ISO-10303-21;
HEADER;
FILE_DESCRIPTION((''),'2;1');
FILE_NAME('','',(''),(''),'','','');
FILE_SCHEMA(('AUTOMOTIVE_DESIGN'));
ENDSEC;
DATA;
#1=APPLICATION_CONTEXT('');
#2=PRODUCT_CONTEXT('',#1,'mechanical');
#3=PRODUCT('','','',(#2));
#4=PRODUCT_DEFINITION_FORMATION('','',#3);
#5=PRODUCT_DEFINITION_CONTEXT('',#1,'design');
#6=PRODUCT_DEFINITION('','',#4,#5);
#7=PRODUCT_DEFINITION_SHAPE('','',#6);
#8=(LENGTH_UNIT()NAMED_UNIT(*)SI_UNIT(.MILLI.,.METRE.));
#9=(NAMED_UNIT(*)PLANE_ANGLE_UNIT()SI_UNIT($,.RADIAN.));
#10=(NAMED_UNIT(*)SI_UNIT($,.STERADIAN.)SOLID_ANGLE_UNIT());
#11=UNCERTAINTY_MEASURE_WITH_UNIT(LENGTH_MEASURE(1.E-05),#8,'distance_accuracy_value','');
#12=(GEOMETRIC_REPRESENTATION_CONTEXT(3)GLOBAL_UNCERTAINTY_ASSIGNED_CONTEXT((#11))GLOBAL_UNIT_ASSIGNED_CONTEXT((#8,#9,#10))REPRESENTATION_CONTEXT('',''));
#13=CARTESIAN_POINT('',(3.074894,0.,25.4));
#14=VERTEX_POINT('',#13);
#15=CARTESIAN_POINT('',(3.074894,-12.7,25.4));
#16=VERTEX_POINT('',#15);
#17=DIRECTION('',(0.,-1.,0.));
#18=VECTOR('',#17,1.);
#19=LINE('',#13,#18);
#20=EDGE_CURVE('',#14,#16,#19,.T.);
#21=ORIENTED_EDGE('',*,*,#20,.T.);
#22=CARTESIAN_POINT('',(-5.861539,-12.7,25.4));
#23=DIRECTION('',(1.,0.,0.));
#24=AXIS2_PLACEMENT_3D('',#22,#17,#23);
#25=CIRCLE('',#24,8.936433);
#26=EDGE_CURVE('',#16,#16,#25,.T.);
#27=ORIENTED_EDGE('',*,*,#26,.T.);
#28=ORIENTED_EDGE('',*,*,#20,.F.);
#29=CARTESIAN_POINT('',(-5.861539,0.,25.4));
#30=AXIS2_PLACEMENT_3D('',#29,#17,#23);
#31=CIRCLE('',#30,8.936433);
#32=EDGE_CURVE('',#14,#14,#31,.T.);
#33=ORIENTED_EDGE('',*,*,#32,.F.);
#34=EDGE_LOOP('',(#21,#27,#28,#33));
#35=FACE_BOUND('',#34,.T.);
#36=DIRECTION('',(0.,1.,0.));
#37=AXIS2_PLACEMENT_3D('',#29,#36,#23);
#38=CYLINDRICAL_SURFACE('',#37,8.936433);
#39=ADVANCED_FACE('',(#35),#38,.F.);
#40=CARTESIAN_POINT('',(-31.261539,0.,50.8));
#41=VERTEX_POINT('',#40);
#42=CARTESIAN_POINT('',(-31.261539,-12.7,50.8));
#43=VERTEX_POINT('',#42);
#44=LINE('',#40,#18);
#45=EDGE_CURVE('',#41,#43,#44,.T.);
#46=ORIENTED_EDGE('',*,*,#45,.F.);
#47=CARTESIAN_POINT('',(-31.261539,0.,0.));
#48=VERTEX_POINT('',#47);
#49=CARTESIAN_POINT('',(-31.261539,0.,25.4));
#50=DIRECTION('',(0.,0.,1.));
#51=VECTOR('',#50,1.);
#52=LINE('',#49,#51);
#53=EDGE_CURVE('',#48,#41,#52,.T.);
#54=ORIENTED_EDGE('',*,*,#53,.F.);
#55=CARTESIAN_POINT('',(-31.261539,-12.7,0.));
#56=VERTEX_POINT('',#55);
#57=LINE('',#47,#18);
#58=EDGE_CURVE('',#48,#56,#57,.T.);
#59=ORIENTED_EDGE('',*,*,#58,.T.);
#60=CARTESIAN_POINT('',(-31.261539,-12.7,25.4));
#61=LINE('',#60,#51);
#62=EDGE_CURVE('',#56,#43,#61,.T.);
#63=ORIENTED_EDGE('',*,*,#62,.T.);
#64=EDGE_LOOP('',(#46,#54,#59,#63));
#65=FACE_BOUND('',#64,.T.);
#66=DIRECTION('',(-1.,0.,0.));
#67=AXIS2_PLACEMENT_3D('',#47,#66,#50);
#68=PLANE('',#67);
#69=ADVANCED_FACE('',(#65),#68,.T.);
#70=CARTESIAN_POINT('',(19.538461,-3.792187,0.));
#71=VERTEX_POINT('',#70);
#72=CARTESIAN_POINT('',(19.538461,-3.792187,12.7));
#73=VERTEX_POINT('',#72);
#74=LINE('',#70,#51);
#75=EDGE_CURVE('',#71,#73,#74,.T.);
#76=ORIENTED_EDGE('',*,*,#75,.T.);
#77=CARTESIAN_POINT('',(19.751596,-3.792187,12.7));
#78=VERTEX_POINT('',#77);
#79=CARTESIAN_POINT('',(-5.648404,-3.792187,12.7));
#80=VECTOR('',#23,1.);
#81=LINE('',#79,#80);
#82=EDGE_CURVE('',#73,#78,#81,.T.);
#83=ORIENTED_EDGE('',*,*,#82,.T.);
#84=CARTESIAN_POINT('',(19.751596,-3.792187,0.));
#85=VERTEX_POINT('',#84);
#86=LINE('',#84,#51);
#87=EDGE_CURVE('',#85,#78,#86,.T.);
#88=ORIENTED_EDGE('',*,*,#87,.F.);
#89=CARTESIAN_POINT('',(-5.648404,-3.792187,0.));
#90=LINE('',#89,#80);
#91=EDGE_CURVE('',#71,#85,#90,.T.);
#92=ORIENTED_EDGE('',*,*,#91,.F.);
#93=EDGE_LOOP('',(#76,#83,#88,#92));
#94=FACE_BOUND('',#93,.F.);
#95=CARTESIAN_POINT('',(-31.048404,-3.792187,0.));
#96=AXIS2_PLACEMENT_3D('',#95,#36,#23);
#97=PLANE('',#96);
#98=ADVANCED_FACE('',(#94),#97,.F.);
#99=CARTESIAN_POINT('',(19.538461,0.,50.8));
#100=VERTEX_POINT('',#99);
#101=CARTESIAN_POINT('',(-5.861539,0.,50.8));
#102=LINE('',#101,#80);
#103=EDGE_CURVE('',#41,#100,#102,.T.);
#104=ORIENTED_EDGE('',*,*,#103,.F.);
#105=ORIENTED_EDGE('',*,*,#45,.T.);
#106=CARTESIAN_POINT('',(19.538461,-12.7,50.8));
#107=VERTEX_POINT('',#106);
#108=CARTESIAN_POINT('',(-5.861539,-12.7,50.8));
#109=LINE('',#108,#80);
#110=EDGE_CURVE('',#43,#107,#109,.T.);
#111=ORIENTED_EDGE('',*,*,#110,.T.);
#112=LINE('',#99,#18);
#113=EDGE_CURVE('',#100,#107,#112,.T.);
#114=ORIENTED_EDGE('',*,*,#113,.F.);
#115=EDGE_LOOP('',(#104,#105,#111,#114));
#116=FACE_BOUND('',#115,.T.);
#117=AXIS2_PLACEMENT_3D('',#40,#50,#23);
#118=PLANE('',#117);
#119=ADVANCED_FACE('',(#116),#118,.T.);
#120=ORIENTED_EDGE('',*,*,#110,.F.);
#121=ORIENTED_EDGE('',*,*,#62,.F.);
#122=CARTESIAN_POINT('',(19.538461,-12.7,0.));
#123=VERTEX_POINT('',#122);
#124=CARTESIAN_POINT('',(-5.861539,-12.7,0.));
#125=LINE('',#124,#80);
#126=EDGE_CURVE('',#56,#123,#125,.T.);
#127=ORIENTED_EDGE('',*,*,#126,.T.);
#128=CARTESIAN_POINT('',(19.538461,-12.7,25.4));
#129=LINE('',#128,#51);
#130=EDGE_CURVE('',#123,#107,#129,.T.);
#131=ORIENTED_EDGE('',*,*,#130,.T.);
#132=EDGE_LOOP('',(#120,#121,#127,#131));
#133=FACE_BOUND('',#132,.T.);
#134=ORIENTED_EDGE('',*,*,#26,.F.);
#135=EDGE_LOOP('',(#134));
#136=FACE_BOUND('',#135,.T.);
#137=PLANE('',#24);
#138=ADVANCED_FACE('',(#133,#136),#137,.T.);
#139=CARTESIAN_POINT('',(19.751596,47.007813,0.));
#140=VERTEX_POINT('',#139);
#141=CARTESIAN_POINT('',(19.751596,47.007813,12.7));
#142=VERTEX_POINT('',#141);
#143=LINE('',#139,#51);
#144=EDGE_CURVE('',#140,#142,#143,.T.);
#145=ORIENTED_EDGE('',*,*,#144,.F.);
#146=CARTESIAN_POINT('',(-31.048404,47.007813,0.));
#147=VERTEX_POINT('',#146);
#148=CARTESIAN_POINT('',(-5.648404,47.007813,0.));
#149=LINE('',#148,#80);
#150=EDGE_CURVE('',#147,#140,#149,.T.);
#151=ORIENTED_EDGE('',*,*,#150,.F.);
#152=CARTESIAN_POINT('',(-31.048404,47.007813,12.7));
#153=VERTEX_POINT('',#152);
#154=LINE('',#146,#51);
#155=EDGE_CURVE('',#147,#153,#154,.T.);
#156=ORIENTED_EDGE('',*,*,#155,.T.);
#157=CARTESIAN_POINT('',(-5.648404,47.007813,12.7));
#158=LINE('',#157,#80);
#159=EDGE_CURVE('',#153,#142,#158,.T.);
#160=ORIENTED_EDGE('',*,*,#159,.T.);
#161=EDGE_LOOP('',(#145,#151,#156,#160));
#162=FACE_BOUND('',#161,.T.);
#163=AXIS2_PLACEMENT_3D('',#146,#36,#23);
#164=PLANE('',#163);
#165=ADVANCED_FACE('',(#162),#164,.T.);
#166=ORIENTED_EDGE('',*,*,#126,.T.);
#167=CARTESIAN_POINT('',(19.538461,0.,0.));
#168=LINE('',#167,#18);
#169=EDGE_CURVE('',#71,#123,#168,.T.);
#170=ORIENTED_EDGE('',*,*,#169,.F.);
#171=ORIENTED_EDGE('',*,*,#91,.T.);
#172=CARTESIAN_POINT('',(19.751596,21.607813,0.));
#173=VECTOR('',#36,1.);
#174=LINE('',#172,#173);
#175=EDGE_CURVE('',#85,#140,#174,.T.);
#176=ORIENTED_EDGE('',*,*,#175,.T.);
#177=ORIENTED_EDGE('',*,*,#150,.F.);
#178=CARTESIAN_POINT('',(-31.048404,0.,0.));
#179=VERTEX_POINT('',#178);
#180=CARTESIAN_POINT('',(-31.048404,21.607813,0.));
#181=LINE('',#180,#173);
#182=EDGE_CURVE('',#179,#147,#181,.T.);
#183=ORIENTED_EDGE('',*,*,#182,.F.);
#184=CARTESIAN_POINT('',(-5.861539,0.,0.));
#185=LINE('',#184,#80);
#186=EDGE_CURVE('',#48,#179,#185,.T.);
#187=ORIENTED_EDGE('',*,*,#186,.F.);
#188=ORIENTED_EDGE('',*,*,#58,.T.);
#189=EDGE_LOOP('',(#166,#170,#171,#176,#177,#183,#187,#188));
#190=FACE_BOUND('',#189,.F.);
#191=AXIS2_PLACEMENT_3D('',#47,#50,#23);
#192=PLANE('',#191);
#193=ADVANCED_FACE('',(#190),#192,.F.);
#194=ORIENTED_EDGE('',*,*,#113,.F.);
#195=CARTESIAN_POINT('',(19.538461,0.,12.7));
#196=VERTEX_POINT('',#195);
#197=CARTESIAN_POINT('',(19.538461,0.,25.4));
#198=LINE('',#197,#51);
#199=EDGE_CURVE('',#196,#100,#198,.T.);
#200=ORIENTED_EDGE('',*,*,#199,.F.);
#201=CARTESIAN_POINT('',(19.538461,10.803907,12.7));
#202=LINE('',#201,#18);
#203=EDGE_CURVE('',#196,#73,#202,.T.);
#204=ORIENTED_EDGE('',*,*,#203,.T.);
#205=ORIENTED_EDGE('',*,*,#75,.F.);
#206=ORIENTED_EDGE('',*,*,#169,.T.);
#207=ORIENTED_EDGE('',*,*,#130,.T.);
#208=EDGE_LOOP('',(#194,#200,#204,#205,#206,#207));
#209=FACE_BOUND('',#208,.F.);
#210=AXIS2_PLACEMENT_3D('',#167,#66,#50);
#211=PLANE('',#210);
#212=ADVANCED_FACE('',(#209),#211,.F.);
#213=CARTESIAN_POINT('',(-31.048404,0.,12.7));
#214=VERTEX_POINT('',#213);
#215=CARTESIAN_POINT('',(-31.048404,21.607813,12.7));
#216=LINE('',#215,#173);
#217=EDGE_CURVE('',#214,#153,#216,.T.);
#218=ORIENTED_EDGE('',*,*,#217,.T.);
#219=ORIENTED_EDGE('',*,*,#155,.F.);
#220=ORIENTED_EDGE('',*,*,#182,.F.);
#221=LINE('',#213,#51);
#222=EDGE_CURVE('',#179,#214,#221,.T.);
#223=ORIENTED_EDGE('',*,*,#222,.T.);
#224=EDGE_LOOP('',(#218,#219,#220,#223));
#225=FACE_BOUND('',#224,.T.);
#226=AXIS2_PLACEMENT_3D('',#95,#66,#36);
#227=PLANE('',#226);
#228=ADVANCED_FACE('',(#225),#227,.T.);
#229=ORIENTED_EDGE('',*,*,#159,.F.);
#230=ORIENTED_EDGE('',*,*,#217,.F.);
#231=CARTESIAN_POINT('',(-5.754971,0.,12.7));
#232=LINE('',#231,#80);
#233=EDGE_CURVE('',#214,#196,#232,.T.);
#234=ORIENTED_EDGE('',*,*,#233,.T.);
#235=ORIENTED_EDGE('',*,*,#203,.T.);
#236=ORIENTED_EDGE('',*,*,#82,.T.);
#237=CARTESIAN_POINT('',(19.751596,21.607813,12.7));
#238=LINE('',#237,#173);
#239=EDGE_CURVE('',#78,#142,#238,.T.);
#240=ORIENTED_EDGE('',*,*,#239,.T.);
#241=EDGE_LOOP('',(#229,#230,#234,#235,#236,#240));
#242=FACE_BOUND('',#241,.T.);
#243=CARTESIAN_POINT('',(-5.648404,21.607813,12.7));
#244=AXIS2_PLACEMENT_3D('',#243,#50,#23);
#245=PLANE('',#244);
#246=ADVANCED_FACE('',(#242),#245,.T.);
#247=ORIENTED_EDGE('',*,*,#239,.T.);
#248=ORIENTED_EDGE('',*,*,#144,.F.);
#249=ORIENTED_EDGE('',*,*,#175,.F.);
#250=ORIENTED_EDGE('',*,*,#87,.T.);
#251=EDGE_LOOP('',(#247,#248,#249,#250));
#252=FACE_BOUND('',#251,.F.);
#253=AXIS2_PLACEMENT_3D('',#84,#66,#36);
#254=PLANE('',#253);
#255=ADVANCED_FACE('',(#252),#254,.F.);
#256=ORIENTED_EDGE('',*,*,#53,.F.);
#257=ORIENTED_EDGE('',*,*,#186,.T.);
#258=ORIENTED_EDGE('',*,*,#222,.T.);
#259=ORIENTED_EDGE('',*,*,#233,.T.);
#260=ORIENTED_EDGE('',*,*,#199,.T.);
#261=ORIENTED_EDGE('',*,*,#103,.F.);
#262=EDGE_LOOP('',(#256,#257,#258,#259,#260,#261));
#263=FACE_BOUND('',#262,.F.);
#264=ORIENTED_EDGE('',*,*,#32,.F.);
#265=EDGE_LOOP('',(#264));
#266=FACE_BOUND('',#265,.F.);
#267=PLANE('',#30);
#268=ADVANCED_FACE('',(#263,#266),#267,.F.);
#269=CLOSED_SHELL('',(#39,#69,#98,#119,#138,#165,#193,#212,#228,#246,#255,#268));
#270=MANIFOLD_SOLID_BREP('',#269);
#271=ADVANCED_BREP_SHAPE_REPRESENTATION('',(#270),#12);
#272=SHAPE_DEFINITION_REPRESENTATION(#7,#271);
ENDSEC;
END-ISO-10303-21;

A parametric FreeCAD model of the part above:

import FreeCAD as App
import Part
import Sketcher
from FreeCAD import Vector
Q = App.Units.Quantity


def add_polygon(sketch, points):
    """Adds a closed chain of lines whose ends are joined by coincident constraints."""
    first, n = sketch.GeometryCount, len(points)
    for a, b in zip(points, points[1:] + points[:1]):
        sketch.addGeometry(Part.LineSegment(App.Vector(*a, 0), App.Vector(*b, 0)), False)
    for i in range(n):
        sketch.addConstraint(Sketcher.Constraint("Coincident", first + i, 2, first + (i + 1) % n, 1))

doc = App.newDocument("Part")
body = doc.addObject("PartDesign::Body", "Body")

# Sketch on XY plane
sketch1 = body.newObject("Sketcher::SketchObject", "Sketch")
sketch1.AttachmentSupport = (doc.getObject("XY_Plane"), [""])
sketch1.MapMode = "FlatFace"
add_polygon(sketch1, [(-31.048404, 47.007813), (-31.048404, -3.792187), (19.751596, -3.792187), (19.751596, 47.007813)])  # lines 0-3
sketch1.addConstraint(Sketcher.Constraint("Vertical", 0))
sketch1.addConstraint(Sketcher.Constraint("Horizontal", 1))
sketch1.addConstraint(Sketcher.Constraint("Vertical", 2))
sketch1.addConstraint(Sketcher.Constraint("Horizontal", 3))
sketch1.addConstraint(Sketcher.Constraint("Equal", 3, 0))
sketch1.addConstraint(Sketcher.Constraint("DistanceX", 1, 1, 1, 2, Q("2 in")))
sketch1.addConstraint(Sketcher.Constraint("DistanceX", 0, 2, -1, 1, Q("31.048404 mm")))
sketch1.addConstraint(Sketcher.Constraint("DistanceY", 0, 2, -1, 1, Q("3.792187 mm")))
pad1 = body.newObject("PartDesign::Pad", "Pad")
pad1.Profile = sketch1
pad1.Length = Q("0.5 in")

# Sketch on XZ plane
sketch2 = body.newObject("Sketcher::SketchObject", "Sketch001")
sketch2.AttachmentSupport = (doc.getObject("XZ_Plane"), [""])
sketch2.MapMode = "FlatFace"
add_polygon(sketch2, [(-31.261539, 50.8), (-31.261539, 0), (19.538461, 0), (19.538461, 50.8)])  # lines 0-3
sketch2.addGeometry(Part.Circle(Vector(-5.861539, 25.4, 0), Vector(0, 0, 1), 8.936433), False)  # 4
sketch2.addConstraint(Sketcher.Constraint("Vertical", 0))
sketch2.addConstraint(Sketcher.Constraint("Horizontal", 1))
sketch2.addConstraint(Sketcher.Constraint("Vertical", 2))
sketch2.addConstraint(Sketcher.Constraint("Horizontal", 3))
sketch2.addConstraint(Sketcher.Constraint("PointOnObject", 0, 2, -1))
sketch2.addConstraint(Sketcher.Constraint("Equal", 3, 0))
sketch2.addConstraint(Sketcher.Constraint("DistanceX", 1, 1, 1, 2, Q("2 in")))
sketch2.addConstraint(Sketcher.Constraint("DistanceY", -1, 1, 4, 3, Q("1 in")))
sketch2.addConstraint(Sketcher.Constraint("DistanceX", 0, 2, 4, 3, Q("1 in")))
sketch2.addConstraint(Sketcher.Constraint("Diameter", 4, Q("17.872866 mm")))
sketch2.addConstraint(Sketcher.Constraint("DistanceX", 4, 3, -1, 1, Q("5.861539 mm")))
pad2 = body.newObject("PartDesign::Pad", "Pad001")
pad2.Profile = sketch2
pad2.Length = Q("0.5 in")

# Sketch on XZ plane
sketch3 = body.newObject("Sketcher::SketchObject", "Sketch002")
sketch3.AttachmentSupport = (doc.getObject("XZ_Plane"), [""])
sketch3.MapMode = "FlatFace"
add_polygon(sketch3, [(-31.261539, 50.8), (-31.261539, 0), (19.538461, 0), (19.538461, 50.8)])  # lines 0-3
sketch3.addGeometry(Part.Circle(Vector(-5.861539, 25.4, 0), Vector(0, 0, 1), 8.936433), False)  # 4
sketch3.addConstraint(Sketcher.Constraint("Vertical", 0))
sketch3.addConstraint(Sketcher.Constraint("Horizontal", 1))
sketch3.addConstraint(Sketcher.Constraint("Vertical", 2))
sketch3.addConstraint(Sketcher.Constraint("Horizontal", 3))
sketch3.addConstraint(Sketcher.Constraint("PointOnObject", 0, 2, -1))
sketch3.addConstraint(Sketcher.Constraint("Equal", 3, 0))
sketch3.addConstraint(Sketcher.Constraint("DistanceX", 1, 1, 1, 2, Q("2 in")))
sketch3.addConstraint(Sketcher.Constraint("DistanceY", -1, 1, 4, 3, Q("1 in")))
sketch3.addConstraint(Sketcher.Constraint("DistanceX", 0, 2, 4, 3, Q("1 in")))
sketch3.addConstraint(Sketcher.Constraint("Diameter", 4, Q("17.872866 mm")))
sketch3.addConstraint(Sketcher.Constraint("DistanceX", 4, 3, -1, 1, Q("5.861539 mm")))
pad3 = body.newObject("PartDesign::Pad", "Pad002")
pad3.Profile = sketch3
pad3.Length = Q("0.5 in")

doc.recompute()
